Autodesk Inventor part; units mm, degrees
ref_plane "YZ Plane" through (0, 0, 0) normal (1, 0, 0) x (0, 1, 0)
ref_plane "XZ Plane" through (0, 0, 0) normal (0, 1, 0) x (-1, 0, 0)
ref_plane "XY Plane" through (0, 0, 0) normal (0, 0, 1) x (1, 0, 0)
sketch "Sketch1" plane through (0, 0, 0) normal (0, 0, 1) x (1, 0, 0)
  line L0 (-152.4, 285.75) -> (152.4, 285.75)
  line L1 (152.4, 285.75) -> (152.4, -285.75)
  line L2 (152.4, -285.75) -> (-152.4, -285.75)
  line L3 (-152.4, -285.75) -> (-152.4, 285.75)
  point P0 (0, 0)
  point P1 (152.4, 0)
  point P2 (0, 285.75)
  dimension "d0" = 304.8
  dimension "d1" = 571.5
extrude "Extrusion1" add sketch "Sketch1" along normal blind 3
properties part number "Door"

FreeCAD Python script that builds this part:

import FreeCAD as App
import Part
import Sketcher
from FreeCAD import Vector
Q = App.Units.Quantity

doc = App.newDocument("Part")
params = doc.addObject("Spreadsheet::Sheet", "Params")
for row, (alias, value) in enumerate([
    ("sketch1_width", "12 in"),
    ("sketch1_height", "22.5 in"),
    ("pad1_length", "0.1181102 in"),
], start=1):
    params.set(f"A{row}", alias)
    params.set(f"B{row}", "=" + value)
    params.setAlias(f"B{row}", alias)

body = doc.addObject("PartDesign::Body", "Body")

# Sketch on XY plane
sketch1 = doc.addObject("Sketcher::SketchObject", "Sketch")
body.addObject(sketch1)
sketch1.AttachmentSupport = (doc.XY_Plane, [""])
sketch1.MapMode = "FlatFace"
sketch1.addGeometry([
    Part.LineSegment(Vector(152.4, 285.75, 0), Vector(-152.4, 285.75, 0)),
    Part.LineSegment(Vector(-152.4, 285.75, 0), Vector(-152.4, -285.75, 0)),
    Part.LineSegment(Vector(-152.4, -285.75, 0), Vector(152.4, -285.75, 0)),
    Part.LineSegment(Vector(152.4, -285.75, 0), Vector(152.4, 285.75, 0)),
], False)
sketch1.addConstraint([
    Sketcher.Constraint("Coincident", 0, 2, 1, 1),
    Sketcher.Constraint("Coincident", 1, 2, 2, 1),
    Sketcher.Constraint("Coincident", 2, 2, 3, 1),
    Sketcher.Constraint("Coincident", 3, 2, 0, 1),
    Sketcher.Constraint("Horizontal", 0),
    Sketcher.Constraint("Vertical", 1),
    Sketcher.Constraint("Horizontal", 2),
    Sketcher.Constraint("Vertical", 3),
    Sketcher.Constraint("Symmetric", 0, 2, 2, 2, -1, 1),
    Sketcher.Constraint("DistanceX", 0, 2, 0, 1, Q("12 in")),
    Sketcher.Constraint("DistanceY", 1, 2, 1, 1, Q("22.5 in")),
])
sketch1.setExpression("Constraints[9]", "Params.sketch1_width")
sketch1.setExpression("Constraints[10]", "Params.sketch1_height")
pad1 = doc.addObject("PartDesign::Pad", "Pad")
body.addObject(pad1)
pad1.Profile = sketch1
pad1.setExpression("Length", "Params.pad1_length")

doc.recompute()
